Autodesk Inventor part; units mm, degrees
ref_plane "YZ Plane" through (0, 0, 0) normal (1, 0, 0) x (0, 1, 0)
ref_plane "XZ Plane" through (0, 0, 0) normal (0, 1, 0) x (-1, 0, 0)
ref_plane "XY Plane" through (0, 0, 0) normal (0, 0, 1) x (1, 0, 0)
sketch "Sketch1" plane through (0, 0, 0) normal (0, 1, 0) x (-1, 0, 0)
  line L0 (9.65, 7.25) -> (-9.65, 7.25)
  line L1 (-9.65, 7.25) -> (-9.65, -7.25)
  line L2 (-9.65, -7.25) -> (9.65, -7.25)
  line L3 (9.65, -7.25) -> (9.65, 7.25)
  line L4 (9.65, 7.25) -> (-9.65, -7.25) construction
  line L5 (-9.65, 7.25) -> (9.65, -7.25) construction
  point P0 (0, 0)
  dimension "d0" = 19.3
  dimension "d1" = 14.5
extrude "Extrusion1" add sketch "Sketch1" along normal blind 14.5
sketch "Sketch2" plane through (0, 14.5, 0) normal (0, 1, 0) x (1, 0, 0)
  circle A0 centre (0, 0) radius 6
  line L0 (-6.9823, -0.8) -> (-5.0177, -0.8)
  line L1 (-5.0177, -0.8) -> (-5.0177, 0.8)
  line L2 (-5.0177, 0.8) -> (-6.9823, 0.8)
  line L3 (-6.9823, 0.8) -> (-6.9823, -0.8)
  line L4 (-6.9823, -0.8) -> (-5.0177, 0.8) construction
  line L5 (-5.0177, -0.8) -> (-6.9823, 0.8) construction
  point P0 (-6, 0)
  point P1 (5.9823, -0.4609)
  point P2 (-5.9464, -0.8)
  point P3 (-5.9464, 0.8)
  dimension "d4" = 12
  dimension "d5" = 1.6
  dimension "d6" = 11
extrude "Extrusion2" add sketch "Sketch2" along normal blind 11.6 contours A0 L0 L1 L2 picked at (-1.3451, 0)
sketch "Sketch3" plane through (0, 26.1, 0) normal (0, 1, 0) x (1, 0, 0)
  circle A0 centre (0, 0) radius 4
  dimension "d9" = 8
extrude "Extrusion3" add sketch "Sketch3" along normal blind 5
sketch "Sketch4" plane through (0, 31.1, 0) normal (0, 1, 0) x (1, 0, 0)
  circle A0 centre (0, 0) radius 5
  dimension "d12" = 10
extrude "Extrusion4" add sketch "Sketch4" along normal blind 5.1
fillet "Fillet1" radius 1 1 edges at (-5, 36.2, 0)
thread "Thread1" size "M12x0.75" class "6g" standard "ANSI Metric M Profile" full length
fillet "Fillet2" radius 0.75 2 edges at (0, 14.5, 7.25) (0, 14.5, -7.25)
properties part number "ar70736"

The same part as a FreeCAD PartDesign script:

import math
import FreeCAD as App
import Part
import Sketcher

V = App.Vector
Q = App.Units.Quantity


def edges_at(feature, points):
    """Names of the edges that pass closest to the given points."""
    edges = feature.Shape.Edges
    near = lambda p: min(range(len(edges)), key=lambda i: edges[i].distToShape(Part.Vertex(*p))[0])
    return sorted({f"Edge{near(p) + 1}" for p in points})


def add_polygon(sketch, points):
    """Adds a closed chain of lines whose ends are joined by coincident constraints."""
    first, n = sketch.GeometryCount, len(points)
    for a, b in zip(points, points[1:] + points[:1]):
        sketch.addGeometry(Part.LineSegment(App.Vector(*a, 0), App.Vector(*b, 0)), False)
    for i in range(n):
        sketch.addConstraint(Sketcher.Constraint("Coincident", first + i, 2, first + (i + 1) % n, 1))

doc = App.newDocument("Part")
body = doc.addObject("PartDesign::Body", "Body")

# Sketch on XZ plane
sketch1 = doc.addObject("Sketcher::SketchObject", "Sketch")
body.addObject(sketch1)
sketch1.AttachmentSupport = (doc.XZ_Plane, [""])
sketch1.MapMode = "FlatFace"
add_polygon(sketch1, [(-10, -7), (-10, 7), (10, 7), (10, -7)])  # lines 0-3
sketch1.addConstraint(Sketcher.Constraint("Vertical", 0))
sketch1.addConstraint(Sketcher.Constraint("Horizontal", 1))
sketch1.addConstraint(Sketcher.Constraint("Vertical", 2))
sketch1.addConstraint(Sketcher.Constraint("Horizontal", 3))
sketch1.addConstraint(Sketcher.Constraint("Symmetric", 0, 2, 2, 2, -1, 1))
sketch1.addConstraint(Sketcher.Constraint("DistanceX", 1, 1, 1, 2, Q("19.3 mm")))
sketch1.addConstraint(Sketcher.Constraint("DistanceY", 0, 1, 0, 2, Q("14.5 mm")))
pad1 = doc.addObject("PartDesign::Pad", "Pad")
body.addObject(pad1)
pad1.Profile = sketch1
pad1.Length = 14.5
pad1.Reversed = True

# Sketch on XZ plane
sketch2 = doc.addObject("Sketcher::SketchObject", "Sketch001")
body.addObject(sketch2)
sketch2.AttachmentSupport = (doc.XZ_Plane, [""])
sketch2.MapMode = "FlatFace"
sketch2.AttachmentOffset = App.Placement(V(0, 0, -14.5), App.Rotation())
sketch2.addGeometry(Part.ArcOfCircle(Part.Circle(V(0, 0, 0), V(0, 0, 1), 6), math.radians(-172), math.radians(172)), False)
sketch2.addGeometry(Part.LineSegment(V(-5.9, -0.8, 0), V(-5, -0.8, 0)), False)
sketch2.addGeometry(Part.LineSegment(V(-5, -0.8, 0), V(-5, 0.8, 0)), False)
sketch2.addGeometry(Part.LineSegment(V(-5, 0.8, 0), V(-5.9, 0.8, 0)), False)
sketch2.addConstraint(Sketcher.Constraint("Coincident", 0, 1, 1, 1))
sketch2.addConstraint(Sketcher.Constraint("Coincident", 1, 2, 2, 1))
sketch2.addConstraint(Sketcher.Constraint("Coincident", 2, 2, 3, 1))
sketch2.addConstraint(Sketcher.Constraint("Coincident", 3, 2, 0, 2))
sketch2.addConstraint(Sketcher.Constraint("Horizontal", 1))
sketch2.addConstraint(Sketcher.Constraint("Vertical", 2))
sketch2.addConstraint(Sketcher.Constraint("Horizontal", 3))
sketch2.addConstraint(Sketcher.Constraint("Coincident", 0, 3, -1, 1))
sketch2.addConstraint(Sketcher.Constraint("Vertical", 0, 1, 3, 2))
sketch2.addConstraint(Sketcher.Constraint("Radius", 0, Q("6 mm")))
sketch2.addConstraint(Sketcher.Constraint("DistanceY", 2, 1, 2, 2, Q("1.6 mm")))
sketch2.addConstraint(Sketcher.Constraint("DistanceX", 1, 1, 1, 2, Q("0.9287 mm")))
pad2 = doc.addObject("PartDesign::Pad", "Pad001")
body.addObject(pad2)
pad2.Profile = sketch2
pad2.Length = 11.6
pad2.Reversed = True

# Sketch on XZ plane
sketch3 = doc.addObject("Sketcher::SketchObject", "Sketch002")
body.addObject(sketch3)
sketch3.AttachmentSupport = (doc.XZ_Plane, [""])
sketch3.MapMode = "FlatFace"
sketch3.AttachmentOffset = App.Placement(V(0, 0, -26.1), App.Rotation())
sketch3.addGeometry(Part.Circle(V(0, 0, 0), V(0, 0, 1), 4), False)
sketch3.addConstraint(Sketcher.Constraint("Coincident", 0, 3, -1, 1))
sketch3.addConstraint(Sketcher.Constraint("Diameter", 0, Q("8 mm")))
pad3 = doc.addObject("PartDesign::Pad", "Pad002")
body.addObject(pad3)
pad3.Profile = sketch3
pad3.Length = 5
pad3.Reversed = True

# Sketch on XZ plane
sketch4 = doc.addObject("Sketcher::SketchObject", "Sketch003")
body.addObject(sketch4)
sketch4.AttachmentSupport = (doc.XZ_Plane, [""])
sketch4.MapMode = "FlatFace"
sketch4.AttachmentOffset = App.Placement(V(0, 0, -31.1), App.Rotation())
sketch4.addGeometry(Part.Circle(V(0, 0, 0), V(0, 0, 1), 5), False)
sketch4.addConstraint(Sketcher.Constraint("Coincident", 0, 3, -1, 1))
sketch4.addConstraint(Sketcher.Constraint("Diameter", 0, Q("10 mm")))
pad4 = doc.addObject("PartDesign::Pad", "Pad003")
body.addObject(pad4)
pad4.Profile = sketch4
pad4.Length = 5.1
pad4.Reversed = True
doc.recompute()

fillet = doc.addObject("PartDesign::Fillet", "Fillet")
body.addObject(fillet)
fillet.Base = (pad4, edges_at(pad4, [(-5, 36.2, 0)]))
fillet.Radius = 1
doc.recompute()

fillet2 = doc.addObject("PartDesign::Fillet", "Fillet001")
body.addObject(fillet2)
fillet2.Base = (fillet, edges_at(fillet, [(0, 14.5, 7.25), (0, 14.5, -7.25)]))
fillet2.Radius = 0.75

doc.recompute()
